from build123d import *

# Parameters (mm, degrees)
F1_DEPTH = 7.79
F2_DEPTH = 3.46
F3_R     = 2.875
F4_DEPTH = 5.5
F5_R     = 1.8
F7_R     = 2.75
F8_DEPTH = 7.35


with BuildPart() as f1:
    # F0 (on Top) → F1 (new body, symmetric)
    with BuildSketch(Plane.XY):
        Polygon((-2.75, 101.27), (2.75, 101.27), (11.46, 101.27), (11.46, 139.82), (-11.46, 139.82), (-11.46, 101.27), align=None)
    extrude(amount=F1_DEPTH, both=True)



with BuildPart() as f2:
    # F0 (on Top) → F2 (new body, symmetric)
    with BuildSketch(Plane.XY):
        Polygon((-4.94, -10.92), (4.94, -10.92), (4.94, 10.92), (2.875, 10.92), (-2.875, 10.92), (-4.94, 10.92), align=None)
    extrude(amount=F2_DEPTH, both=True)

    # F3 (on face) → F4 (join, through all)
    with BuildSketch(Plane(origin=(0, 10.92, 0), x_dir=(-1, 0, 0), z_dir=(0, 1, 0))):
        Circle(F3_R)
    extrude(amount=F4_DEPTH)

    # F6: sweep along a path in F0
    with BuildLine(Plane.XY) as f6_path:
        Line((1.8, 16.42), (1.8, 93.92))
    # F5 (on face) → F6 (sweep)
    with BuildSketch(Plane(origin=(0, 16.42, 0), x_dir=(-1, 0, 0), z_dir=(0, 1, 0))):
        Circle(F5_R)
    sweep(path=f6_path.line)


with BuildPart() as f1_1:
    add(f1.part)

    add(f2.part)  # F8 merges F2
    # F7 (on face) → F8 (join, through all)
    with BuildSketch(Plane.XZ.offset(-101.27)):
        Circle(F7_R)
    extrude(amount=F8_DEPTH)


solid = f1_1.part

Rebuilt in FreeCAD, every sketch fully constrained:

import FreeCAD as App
import Part
import Sketcher
Q = App.Units.Quantity

doc = App.newDocument("Part")
params = doc.addObject("Spreadsheet::Sheet", "Params")
for row, (alias, value) in enumerate([
    ("sketch1_width", "22.92 mm"),
    ("sketch1_height", "38.55 mm"),
    ("pad1_length", "15.58 mm"),
    ("sketch2_width", "9.88 mm"),
    ("sketch2_height", "21.84 mm"),
    ("pad2_length", "6.92 mm"),
    ("sketch3_diameter", "5.75 mm"),
    ("pad3_length", "5.5 mm"),
    ("sketch4_diameter", "3.6 mm"),
    ("sketch5_height", "77.5 mm"),
    ("sketch6_diameter", "5.5 mm"),
    ("pad4_length", "7.35 mm"),
], start=1):
    params.set(f"A{row}", alias)
    params.set(f"B{row}", "=" + value)
    params.setAlias(f"B{row}", alias)

body = doc.addObject("PartDesign::Body", "Body")

# Sketch on XY plane
sketch1 = doc.addObject("Sketcher::SketchObject", "Sketch")
body.addObject(sketch1)
sketch1.AttachmentSupport = (doc.XY_Plane, [""])
sketch1.MapMode = "FlatFace"
sketch1.addGeometry([
    Part.LineSegment(App.Vector(11, 101, 0), App.Vector(11, 140, 0)),
    Part.LineSegment(App.Vector(11, 140, 0), App.Vector(-11, 140, 0)),
    Part.LineSegment(App.Vector(-11, 140, 0), App.Vector(-11, 101, 0)),
    Part.LineSegment(App.Vector(-11, 101, 0), App.Vector(11, 101, 0)),
], False)
sketch1.addConstraint([
    Sketcher.Constraint("Coincident", 0, 2, 1, 1),
    Sketcher.Constraint("Coincident", 1, 2, 2, 1),
    Sketcher.Constraint("Coincident", 2, 2, 3, 1),
    Sketcher.Constraint("Coincident", 3, 2, 0, 1),
    Sketcher.Constraint("Vertical", 0),
    Sketcher.Constraint("Horizontal", 1),
    Sketcher.Constraint("Vertical", 2),
    Sketcher.Constraint("Horizontal", 3),
    Sketcher.Constraint("DistanceX", 1, 2, 1, 1, Q("22.92 mm")),
    Sketcher.Constraint("DistanceY", 0, 1, 0, 2, Q("38.55 mm")),
    Sketcher.Constraint("DistanceX", -1, 1, 0, 2, Q("11.46 mm")),
    Sketcher.Constraint("DistanceY", -1, 1, 0, 2, Q("139.82 mm")),
])
sketch1.setExpression("Constraints[8]", "Params.sketch1_width")
sketch1.setExpression("Constraints[9]", "Params.sketch1_height")
pad1 = doc.addObject("PartDesign::Pad", "Pad")
body.addObject(pad1)
pad1.Profile = sketch1
pad1.setExpression("Length", "Params.pad1_length")
pad1.Midplane = True
body2 = doc.addObject("PartDesign::Body", "Body001")

# Sketch on XY plane
sketch2 = doc.addObject("Sketcher::SketchObject", "Sketch001")
body2.addObject(sketch2)
sketch2.AttachmentSupport = (doc.getObject("XY_Plane001"), [""])
sketch2.MapMode = "FlatFace"
sketch2.addGeometry([
    Part.LineSegment(App.Vector(-5, -11, 0), App.Vector(5, -11, 0)),
    Part.LineSegment(App.Vector(5, -11, 0), App.Vector(5, 11, 0)),
    Part.LineSegment(App.Vector(5, 11, 0), App.Vector(-5, 11, 0)),
    Part.LineSegment(App.Vector(-5, 11, 0), App.Vector(-5, -11, 0)),
], False)
sketch2.addConstraint([
    Sketcher.Constraint("Coincident", 0, 2, 1, 1),
    Sketcher.Constraint("Coincident", 1, 2, 2, 1),
    Sketcher.Constraint("Coincident", 2, 2, 3, 1),
    Sketcher.Constraint("Coincident", 3, 2, 0, 1),
    Sketcher.Constraint("Horizontal", 0),
    Sketcher.Constraint("Vertical", 1),
    Sketcher.Constraint("Horizontal", 2),
    Sketcher.Constraint("Vertical", 3),
    Sketcher.Constraint("Symmetric", 0, 2, 2, 2, -1, 1),
    Sketcher.Constraint("DistanceX", 0, 1, 0, 2, Q("9.88 mm")),
    Sketcher.Constraint("DistanceY", 1, 1, 1, 2, Q("21.84 mm")),
])
sketch2.setExpression("Constraints[9]", "Params.sketch2_width")
sketch2.setExpression("Constraints[10]", "Params.sketch2_height")
pad2 = doc.addObject("PartDesign::Pad", "Pad001")
body2.addObject(pad2)
pad2.Profile = sketch2
pad2.setExpression("Length", "Params.pad2_length")
pad2.Midplane = True

# Sketch on XZ plane
sketch3 = doc.addObject("Sketcher::SketchObject", "Sketch002")
body2.addObject(sketch3)
sketch3.AttachmentSupport = (doc.getObject("XZ_Plane001"), [""])
sketch3.MapMode = "FlatFace"
sketch3.AttachmentOffset = App.Placement(App.Vector(0, 0, -10.92), App.Rotation())
sketch3.addGeometry(Part.Circle(App.Vector(0, 0, 0), App.Vector(0, 0, 1), 2.9), False)
sketch3.addConstraint([
    Sketcher.Constraint("Coincident", 0, 3, -1, 1),
    Sketcher.Constraint("Diameter", 0, Q("5.75 mm")),
])
sketch3.setExpression("Constraints[1]", "Params.sketch3_diameter")
pad3 = doc.addObject("PartDesign::Pad", "Pad002")
body2.addObject(pad3)
pad3.Profile = sketch3
pad3.setExpression("Length", "Params.pad3_length")
pad3.Reversed = True

# Sketch on XZ plane
sketch4 = doc.addObject("Sketcher::SketchObject", "Sketch003")
body2.addObject(sketch4)
sketch4.AttachmentSupport = (doc.getObject("XZ_Plane001"), [""])
sketch4.MapMode = "FlatFace"
sketch4.AttachmentOffset = App.Placement(App.Vector(0, 0, -16.42), App.Rotation())
sketch4.addGeometry(Part.Circle(App.Vector(0, 0, 0), App.Vector(0, 0, 1), 1.8), False)
sketch4.addConstraint([
    Sketcher.Constraint("Coincident", 0, 3, -1, 1),
    Sketcher.Constraint("Diameter", 0, Q("3.6 mm")),
])
sketch4.setExpression("Constraints[1]", "Params.sketch4_diameter")

# Sketch on XY plane
sketch5 = doc.addObject("Sketcher::SketchObject", "Sketch004")
body2.addObject(sketch5)
sketch5.AttachmentSupport = (doc.getObject("XY_Plane001"), [""])
sketch5.MapMode = "FlatFace"
sketch5.addGeometry(Part.LineSegment(App.Vector(2, 16, 0), App.Vector(2, 94, 0)), False)
sketch5.addConstraint([
    Sketcher.Constraint("Vertical", 0),
    Sketcher.Constraint("DistanceY", 0, 1, 0, 2, Q("77.5 mm")),
    Sketcher.Constraint("DistanceX", -1, 1, 0, 1, Q("1.8 mm")),
    Sketcher.Constraint("DistanceY", -1, 1, 0, 1, Q("16.42 mm")),
])
sketch5.setExpression("Constraints[1]", "Params.sketch5_height")
doc.recompute()

additivepipe = doc.addObject("PartDesign::AdditivePipe", "AdditivePipe")
body2.addObject(additivepipe)
additivepipe.Profile = sketch4
additivepipe.Spine = (sketch5, ["Edge1"])
body.AllowCompound = True
doc.recompute()

boolean = doc.addObject("PartDesign::Boolean", "Boolean")
body.addObject(boolean)
boolean.Type = "Fuse"
boolean.addObjects([body2])

# Sketch on XZ plane
sketch6 = doc.addObject("Sketcher::SketchObject", "Sketch005")
body.addObject(sketch6)
sketch6.AttachmentSupport = (doc.XZ_Plane, [""])
sketch6.MapMode = "FlatFace"
sketch6.AttachmentOffset = App.Placement(App.Vector(0, 0, -101.27), App.Rotation())
sketch6.addGeometry(Part.Circle(App.Vector(0, 0, 0), App.Vector(0, 0, 1), 2.8), False)
sketch6.addConstraint([
    Sketcher.Constraint("Coincident", 0, 3, -1, 1),
    Sketcher.Constraint("Diameter", 0, Q("5.5 mm")),
])
sketch6.setExpression("Constraints[1]", "Params.sketch6_diameter")
pad4 = doc.addObject("PartDesign::Pad", "Pad003")
body.addObject(pad4)
pad4.Profile = sketch6
pad4.setExpression("Length", "Params.pad4_length")

doc.recompute()
